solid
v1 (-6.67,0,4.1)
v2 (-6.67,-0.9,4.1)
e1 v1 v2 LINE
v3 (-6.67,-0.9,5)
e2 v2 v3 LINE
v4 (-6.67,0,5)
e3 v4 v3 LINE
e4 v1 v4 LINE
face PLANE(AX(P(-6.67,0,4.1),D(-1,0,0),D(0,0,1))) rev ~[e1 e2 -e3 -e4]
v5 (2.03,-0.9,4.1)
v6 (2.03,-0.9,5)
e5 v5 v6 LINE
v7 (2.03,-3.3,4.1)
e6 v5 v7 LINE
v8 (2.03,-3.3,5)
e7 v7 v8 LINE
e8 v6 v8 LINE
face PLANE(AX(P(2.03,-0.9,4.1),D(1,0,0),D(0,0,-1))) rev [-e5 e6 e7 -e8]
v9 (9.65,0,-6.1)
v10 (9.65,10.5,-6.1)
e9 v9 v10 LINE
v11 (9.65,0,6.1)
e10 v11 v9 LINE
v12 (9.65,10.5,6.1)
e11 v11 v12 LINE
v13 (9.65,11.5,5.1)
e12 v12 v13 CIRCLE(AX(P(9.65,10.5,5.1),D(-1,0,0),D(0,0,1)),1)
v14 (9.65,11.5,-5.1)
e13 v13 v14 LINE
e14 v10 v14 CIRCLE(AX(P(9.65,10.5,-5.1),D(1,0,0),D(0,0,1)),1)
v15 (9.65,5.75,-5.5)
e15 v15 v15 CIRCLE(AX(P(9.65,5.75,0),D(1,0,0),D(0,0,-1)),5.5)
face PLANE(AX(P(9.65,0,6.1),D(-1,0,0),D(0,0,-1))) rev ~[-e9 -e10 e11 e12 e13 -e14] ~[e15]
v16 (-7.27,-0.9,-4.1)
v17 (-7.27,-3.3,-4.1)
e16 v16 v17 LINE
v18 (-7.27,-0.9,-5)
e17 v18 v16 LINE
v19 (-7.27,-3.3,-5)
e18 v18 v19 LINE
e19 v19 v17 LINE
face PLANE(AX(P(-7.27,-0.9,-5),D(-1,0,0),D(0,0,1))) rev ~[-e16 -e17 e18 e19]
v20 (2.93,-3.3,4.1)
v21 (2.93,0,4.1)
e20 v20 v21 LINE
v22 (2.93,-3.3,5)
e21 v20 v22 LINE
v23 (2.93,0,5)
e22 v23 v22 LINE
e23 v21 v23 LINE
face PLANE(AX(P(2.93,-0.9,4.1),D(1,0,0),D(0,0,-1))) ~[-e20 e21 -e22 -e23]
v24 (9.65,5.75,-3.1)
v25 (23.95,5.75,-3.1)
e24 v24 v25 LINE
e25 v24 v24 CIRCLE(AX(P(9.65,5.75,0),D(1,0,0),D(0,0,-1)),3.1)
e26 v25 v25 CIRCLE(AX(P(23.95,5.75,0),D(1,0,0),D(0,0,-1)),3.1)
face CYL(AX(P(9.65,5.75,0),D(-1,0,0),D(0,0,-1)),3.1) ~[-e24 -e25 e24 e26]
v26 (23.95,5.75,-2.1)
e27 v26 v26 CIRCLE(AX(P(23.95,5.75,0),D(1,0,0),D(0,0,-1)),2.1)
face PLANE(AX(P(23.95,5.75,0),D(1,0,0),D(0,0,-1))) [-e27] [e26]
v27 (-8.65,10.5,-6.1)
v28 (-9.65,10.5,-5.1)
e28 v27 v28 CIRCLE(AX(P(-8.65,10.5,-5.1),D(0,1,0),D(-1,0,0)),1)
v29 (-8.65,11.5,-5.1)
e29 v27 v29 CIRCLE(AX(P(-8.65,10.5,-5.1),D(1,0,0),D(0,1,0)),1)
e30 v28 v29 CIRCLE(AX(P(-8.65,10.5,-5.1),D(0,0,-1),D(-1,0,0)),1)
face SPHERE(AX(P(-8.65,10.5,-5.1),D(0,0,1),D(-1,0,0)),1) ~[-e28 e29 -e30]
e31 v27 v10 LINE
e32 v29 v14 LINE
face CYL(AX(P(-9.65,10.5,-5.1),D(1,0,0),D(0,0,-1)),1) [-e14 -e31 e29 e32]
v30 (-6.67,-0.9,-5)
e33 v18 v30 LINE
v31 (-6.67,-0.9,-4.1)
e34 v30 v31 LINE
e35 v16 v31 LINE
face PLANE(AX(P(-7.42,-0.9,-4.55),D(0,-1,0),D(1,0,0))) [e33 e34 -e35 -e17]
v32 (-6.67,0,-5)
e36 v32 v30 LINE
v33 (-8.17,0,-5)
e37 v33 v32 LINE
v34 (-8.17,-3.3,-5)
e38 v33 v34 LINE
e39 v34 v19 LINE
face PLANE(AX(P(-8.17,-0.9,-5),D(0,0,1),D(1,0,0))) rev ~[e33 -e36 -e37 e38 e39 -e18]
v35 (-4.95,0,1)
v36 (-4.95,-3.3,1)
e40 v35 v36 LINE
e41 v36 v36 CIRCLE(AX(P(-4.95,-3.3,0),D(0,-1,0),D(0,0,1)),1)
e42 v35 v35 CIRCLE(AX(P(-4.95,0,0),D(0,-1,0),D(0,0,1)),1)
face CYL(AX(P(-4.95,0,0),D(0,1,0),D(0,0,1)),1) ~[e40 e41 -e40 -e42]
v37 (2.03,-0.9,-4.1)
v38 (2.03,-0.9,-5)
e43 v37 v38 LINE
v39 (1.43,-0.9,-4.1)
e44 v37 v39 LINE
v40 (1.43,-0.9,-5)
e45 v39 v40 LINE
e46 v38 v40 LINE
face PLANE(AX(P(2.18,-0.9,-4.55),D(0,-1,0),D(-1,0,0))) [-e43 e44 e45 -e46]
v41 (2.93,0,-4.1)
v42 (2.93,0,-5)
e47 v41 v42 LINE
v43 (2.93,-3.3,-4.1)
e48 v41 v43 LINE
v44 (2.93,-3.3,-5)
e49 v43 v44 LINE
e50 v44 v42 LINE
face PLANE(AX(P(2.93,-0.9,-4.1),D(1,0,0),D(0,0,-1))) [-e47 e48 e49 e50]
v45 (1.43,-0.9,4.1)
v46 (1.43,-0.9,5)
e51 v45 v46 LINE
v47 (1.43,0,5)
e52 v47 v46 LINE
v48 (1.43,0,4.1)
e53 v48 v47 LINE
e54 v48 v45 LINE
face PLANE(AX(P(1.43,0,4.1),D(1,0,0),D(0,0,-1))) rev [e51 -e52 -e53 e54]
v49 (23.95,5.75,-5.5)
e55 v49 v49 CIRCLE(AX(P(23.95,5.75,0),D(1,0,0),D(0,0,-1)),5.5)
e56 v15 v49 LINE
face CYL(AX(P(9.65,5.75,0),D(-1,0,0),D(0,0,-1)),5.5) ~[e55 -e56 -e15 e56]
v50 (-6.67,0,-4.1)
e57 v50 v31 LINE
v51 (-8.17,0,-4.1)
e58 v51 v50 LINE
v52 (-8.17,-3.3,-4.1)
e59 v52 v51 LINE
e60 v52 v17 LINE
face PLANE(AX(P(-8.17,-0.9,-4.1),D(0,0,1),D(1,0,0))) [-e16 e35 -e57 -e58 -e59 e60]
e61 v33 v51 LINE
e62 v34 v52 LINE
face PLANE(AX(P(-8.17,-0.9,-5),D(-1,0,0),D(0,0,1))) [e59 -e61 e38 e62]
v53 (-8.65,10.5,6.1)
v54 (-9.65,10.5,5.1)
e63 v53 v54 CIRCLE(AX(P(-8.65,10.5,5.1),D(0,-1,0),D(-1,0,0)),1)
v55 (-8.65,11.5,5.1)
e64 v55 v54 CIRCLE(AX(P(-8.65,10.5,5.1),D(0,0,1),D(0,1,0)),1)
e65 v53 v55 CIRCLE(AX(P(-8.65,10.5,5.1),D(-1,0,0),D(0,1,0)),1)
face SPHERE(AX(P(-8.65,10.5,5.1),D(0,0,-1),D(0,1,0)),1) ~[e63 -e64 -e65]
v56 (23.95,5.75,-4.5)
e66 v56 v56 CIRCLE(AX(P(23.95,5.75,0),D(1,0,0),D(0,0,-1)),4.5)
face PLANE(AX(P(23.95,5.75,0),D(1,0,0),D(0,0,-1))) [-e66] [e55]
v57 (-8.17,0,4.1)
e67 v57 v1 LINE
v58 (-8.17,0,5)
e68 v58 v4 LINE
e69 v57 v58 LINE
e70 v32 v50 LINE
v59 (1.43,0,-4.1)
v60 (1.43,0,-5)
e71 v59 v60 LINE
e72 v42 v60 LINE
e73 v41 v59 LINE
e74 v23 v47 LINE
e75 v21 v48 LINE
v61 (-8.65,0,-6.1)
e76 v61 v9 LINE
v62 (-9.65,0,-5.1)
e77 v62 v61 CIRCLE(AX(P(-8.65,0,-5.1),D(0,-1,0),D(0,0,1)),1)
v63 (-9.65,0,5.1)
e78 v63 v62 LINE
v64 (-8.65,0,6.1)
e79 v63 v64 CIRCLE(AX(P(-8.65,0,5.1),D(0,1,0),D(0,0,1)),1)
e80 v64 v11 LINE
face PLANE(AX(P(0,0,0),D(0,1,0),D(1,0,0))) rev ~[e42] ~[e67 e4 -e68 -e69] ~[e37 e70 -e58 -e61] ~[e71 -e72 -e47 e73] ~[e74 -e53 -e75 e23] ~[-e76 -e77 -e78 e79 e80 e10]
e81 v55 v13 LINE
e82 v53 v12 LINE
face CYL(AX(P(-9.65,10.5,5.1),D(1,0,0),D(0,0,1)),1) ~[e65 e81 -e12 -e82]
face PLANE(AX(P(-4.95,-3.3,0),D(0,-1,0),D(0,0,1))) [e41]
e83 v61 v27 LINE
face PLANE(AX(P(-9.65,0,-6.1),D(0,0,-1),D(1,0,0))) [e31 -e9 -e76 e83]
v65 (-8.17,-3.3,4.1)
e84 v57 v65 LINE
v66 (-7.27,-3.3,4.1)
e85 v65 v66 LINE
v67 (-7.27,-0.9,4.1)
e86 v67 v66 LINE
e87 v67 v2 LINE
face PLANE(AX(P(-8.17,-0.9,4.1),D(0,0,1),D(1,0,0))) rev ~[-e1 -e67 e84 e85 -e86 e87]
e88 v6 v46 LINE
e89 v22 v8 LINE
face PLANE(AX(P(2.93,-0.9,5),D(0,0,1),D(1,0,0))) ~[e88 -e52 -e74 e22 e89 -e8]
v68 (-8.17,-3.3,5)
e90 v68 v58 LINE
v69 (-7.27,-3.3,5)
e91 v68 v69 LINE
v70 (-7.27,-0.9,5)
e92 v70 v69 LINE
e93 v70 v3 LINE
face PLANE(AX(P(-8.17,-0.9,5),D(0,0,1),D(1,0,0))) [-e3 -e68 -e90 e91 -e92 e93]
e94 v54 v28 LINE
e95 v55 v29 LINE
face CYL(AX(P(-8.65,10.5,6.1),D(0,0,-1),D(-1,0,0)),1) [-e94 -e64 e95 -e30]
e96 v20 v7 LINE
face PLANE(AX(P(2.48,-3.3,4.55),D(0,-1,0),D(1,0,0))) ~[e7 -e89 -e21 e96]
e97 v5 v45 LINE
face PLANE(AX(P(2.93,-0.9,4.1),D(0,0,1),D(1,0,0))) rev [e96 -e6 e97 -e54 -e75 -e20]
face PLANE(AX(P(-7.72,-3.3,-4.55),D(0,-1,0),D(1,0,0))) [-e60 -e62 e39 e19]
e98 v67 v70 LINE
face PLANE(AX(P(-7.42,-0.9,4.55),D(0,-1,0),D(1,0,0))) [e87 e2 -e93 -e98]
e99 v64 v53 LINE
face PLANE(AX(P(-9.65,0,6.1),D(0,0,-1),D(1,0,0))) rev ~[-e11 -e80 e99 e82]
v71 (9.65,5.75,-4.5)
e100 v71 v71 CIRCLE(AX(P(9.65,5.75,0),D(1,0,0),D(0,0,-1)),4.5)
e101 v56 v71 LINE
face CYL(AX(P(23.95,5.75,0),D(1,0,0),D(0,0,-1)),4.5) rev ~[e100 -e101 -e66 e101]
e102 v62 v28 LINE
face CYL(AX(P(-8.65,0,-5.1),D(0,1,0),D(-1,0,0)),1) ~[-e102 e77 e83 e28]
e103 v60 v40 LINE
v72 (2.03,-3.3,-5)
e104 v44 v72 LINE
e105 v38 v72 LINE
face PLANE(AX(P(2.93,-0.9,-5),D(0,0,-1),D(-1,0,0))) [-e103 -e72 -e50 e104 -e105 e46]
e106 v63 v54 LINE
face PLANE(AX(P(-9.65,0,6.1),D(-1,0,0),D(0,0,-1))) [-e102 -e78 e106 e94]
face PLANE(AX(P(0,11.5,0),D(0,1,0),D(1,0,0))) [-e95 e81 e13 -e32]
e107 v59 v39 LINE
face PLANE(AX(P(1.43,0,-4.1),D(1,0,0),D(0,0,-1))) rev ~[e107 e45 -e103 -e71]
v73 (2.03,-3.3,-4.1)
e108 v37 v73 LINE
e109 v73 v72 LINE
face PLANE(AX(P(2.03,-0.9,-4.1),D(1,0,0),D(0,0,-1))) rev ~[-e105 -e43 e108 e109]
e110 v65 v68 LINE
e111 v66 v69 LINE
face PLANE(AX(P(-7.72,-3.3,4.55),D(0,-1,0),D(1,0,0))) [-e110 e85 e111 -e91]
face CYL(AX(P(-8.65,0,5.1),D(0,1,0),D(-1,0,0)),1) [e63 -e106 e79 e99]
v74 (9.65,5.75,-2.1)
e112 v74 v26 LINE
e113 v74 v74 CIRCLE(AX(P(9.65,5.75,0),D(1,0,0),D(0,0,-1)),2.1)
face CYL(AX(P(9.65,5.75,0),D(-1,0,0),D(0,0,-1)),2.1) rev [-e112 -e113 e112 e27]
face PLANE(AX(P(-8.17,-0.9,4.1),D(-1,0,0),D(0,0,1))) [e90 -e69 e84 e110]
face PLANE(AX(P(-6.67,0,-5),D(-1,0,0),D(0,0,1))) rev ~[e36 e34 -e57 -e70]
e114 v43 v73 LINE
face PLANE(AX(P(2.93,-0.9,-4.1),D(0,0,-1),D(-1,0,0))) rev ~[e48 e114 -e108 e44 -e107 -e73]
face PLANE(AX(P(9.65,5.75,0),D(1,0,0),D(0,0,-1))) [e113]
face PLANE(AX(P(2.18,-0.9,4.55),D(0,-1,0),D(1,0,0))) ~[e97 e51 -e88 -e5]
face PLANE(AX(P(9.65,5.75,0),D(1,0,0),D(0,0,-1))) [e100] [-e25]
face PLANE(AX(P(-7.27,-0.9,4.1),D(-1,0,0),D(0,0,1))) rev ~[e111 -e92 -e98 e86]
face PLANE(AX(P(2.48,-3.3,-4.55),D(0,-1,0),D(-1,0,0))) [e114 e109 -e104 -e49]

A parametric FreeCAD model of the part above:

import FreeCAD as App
import Part
import Sketcher
Q = App.Units.Quantity


def edges_at(feature, points):
    """Names of the edges that pass closest to the given points."""
    edges = feature.Shape.Edges
    near = lambda p: min(range(len(edges)), key=lambda i: edges[i].distToShape(Part.Vertex(*p))[0])
    return sorted({f"Edge{near(p) + 1}" for p in points})


def add_polygon(sketch, points):
    """Adds a closed chain of lines whose ends are joined by coincident constraints."""
    first, n = sketch.GeometryCount, len(points)
    for a, b in zip(points, points[1:] + points[:1]):
        sketch.addGeometry(Part.LineSegment(App.Vector(*a, 0), App.Vector(*b, 0)), False)
    for i in range(n):
        sketch.addConstraint(Sketcher.Constraint("Coincident", first + i, 2, first + (i + 1) % n, 1))

doc = App.newDocument("Part")
params = doc.addObject("Spreadsheet::Sheet", "Params")
for row, (alias, value) in enumerate([
    ("sketch1_width", "19.3 mm"),
    ("sketch1_height", "12.2 mm"),
    ("pad1_length", "11.5 mm"),
    ("fillet_radius", "1 mm"),
    ("sketch2_diameter", "11 mm"),
    ("pad2_length", "14.3 mm"),
    ("sketch3_diameter", "9 mm"),
    ("pocket1_length", "14.3 mm"),
    ("sketch4_diameter", "6.2 mm"),
    ("sketch4_diameter2", "4.2 mm"),
    ("pad3_length", "14.3 mm"),
    ("sketch5_width", "1.5 mm"),
    ("sketch5_height", "0.9 mm"),
    ("pad4_length", "0.9 mm"),
    ("sketch6_width", "0.9 mm"),
    ("pad5_length", "2.4 mm"),
    ("linearpattern_pitch", "9.1 mm"),
    ("sketch7_width", "1.5 mm"),
    ("sketch7_height", "0.9 mm"),
    ("pad6_length", "0.9 mm"),
    ("sketch8_width", "0.9 mm"),
    ("pad7_length", "2.4 mm"),
    ("sketch9_diameter", "2 mm"),
    ("pad8_length", "3.3 mm"),
], start=1):
    params.set(f"A{row}", alias)
    params.set(f"B{row}", "=" + value)
    params.setAlias(f"B{row}", alias)

body = doc.addObject("PartDesign::Body", "Body")

# Sketch on XZ plane
sketch1 = body.newObject("Sketcher::SketchObject", "Sketch")
sketch1.AttachmentSupport = (doc.getObject("XZ_Plane"), [""])
sketch1.MapMode = "FlatFace"
add_polygon(sketch1, [(-10, -6), (-10, 6), (10, 6), (10, -6)])  # lines 0-3
sketch1.addConstraint([
    Sketcher.Constraint("Vertical", 0),
    Sketcher.Constraint("Horizontal", 1),
    Sketcher.Constraint("Vertical", 2),
    Sketcher.Constraint("Horizontal", 3),
    Sketcher.Constraint("Symmetric", 0, 2, 2, 2, -1, 1),
    Sketcher.Constraint("DistanceX", 1, 1, 1, 2, Q("19.3 mm")),
    Sketcher.Constraint("DistanceY", 0, 1, 0, 2, Q("12.2 mm")),
])
sketch1.setExpression("Constraints[9]", "Params.sketch1_width")
sketch1.setExpression("Constraints[10]", "Params.sketch1_height")
pad1 = body.newObject("PartDesign::Pad", "Pad")
pad1.Profile = sketch1
pad1.setExpression("Length", "Params.pad1_length")
pad1.Reversed = True
doc.recompute()

fillet = body.newObject("PartDesign::Fillet", "Fillet")
fillet.Base = (pad1, edges_at(pad1, [
    (-9.65, 11.5, 0),
    (0, 11.5, 6.1),
    (-9.65, 5.75, 6.1),
    (-9.65, 5.75, -6.1),
    (0, 11.5, -6.1),
]))
fillet.setExpression("Radius", "Params.fillet_radius")

# Sketch on YZ plane
sketch2 = body.newObject("Sketcher::SketchObject", "Sketch001")
sketch2.AttachmentSupport = (doc.getObject("YZ_Plane"), [""])
sketch2.MapMode = "FlatFace"
sketch2.AttachmentOffset = App.Placement(App.Vector(0, 0, 9.65), App.Rotation())
sketch2.addGeometry(Part.Circle(App.Vector(6, 0, 0), App.Vector(0, 0, 1), 6), False)
sketch2.addConstraint([
    Sketcher.Constraint("PointOnObject", 0, 3, -1),
    Sketcher.Constraint("Diameter", 0, Q("11 mm")),
    Sketcher.Constraint("DistanceX", -1, 1, 0, 3, Q("5.75 mm")),
])
sketch2.setExpression("Constraints[1]", "Params.sketch2_diameter")
pad2 = body.newObject("PartDesign::Pad", "Pad001")
pad2.Profile = sketch2
pad2.setExpression("Length", "Params.pad2_length")

# Sketch on YZ plane
sketch3 = body.newObject("Sketcher::SketchObject", "Sketch002")
sketch3.AttachmentSupport = (doc.getObject("YZ_Plane"), [""])
sketch3.MapMode = "FlatFace"
sketch3.AttachmentOffset = App.Placement(App.Vector(0, 0, 23.95), App.Rotation())
sketch3.addGeometry(Part.Circle(App.Vector(5.8, 0, 0), App.Vector(0, 0, 1), 4.5), False)
sketch3.addConstraint([
    Sketcher.Constraint("PointOnObject", 0, 3, -1),
    Sketcher.Constraint("Diameter", 0, Q("9 mm")),
    Sketcher.Constraint("DistanceX", -1, 1, 0, 3, Q("5.75 mm")),
])
sketch3.setExpression("Constraints[1]", "Params.sketch3_diameter")
pocket1 = body.newObject("PartDesign::Pocket", "Pocket")
pocket1.Profile = sketch3
pocket1.setExpression("Length", "Params.pocket1_length")

# Sketch on YZ plane
sketch4 = body.newObject("Sketcher::SketchObject", "Sketch003")
sketch4.AttachmentSupport = (doc.getObject("YZ_Plane"), [""])
sketch4.MapMode = "FlatFace"
sketch4.AttachmentOffset = App.Placement(App.Vector(0, 0, 9.65), App.Rotation())
sketch4.addGeometry([
    Part.Circle(App.Vector(5.8, 0, 0), App.Vector(0, 0, 1), 3.1),
    Part.Circle(App.Vector(5.8, 0, 0), App.Vector(0, 0, 1), 2.1),
], False)
sketch4.addConstraint([
    Sketcher.Constraint("Coincident", 1, 3, 0, 3),
    Sketcher.Constraint("PointOnObject", 0, 3, -1),
    Sketcher.Constraint("Diameter", 0, Q("6.2 mm")),
    Sketcher.Constraint("Diameter", 1, Q("4.2 mm")),
    Sketcher.Constraint("DistanceX", -1, 1, 0, 3, Q("5.75 mm")),
])
sketch4.setExpression("Constraints[2]", "Params.sketch4_diameter")
sketch4.setExpression("Constraints[3]", "Params.sketch4_diameter2")
pad3 = body.newObject("PartDesign::Pad", "Pad002")
pad3.Profile = sketch4
pad3.setExpression("Length", "Params.pad3_length")

# Sketch on XZ plane
sketch5 = body.newObject("Sketcher::SketchObject", "Sketch004")
sketch5.AttachmentSupport = (doc.getObject("XZ_Plane"), [""])
sketch5.MapMode = "FlatFace"
add_polygon(sketch5, [(-8.2, 5), (-8.2, 4.1), (-6.7, 4.1), (-6.7, 5)])  # lines 0-3
sketch5.addConstraint([
    Sketcher.Constraint("Vertical", 0),
    Sketcher.Constraint("Horizontal", 1),
    Sketcher.Constraint("Vertical", 2),
    Sketcher.Constraint("Horizontal", 3),
    Sketcher.Constraint("DistanceX", 1, 1, 1, 2, Q("1.5 mm")),
    Sketcher.Constraint("DistanceY", 0, 2, 0, 1, Q("0.9 mm")),
    Sketcher.Constraint("DistanceY", -1, 1, 2, 2, Q("5 mm")),
    Sketcher.Constraint("DistanceX", 0, 2, -1, 1, Q("8.17 mm")),
])
sketch5.setExpression("Constraints[8]", "Params.sketch5_width")
sketch5.setExpression("Constraints[9]", "Params.sketch5_height")
pad4 = body.newObject("PartDesign::Pad", "Pad003")
pad4.Profile = sketch5
pad4.setExpression("Length", "Params.pad4_length")

# Sketch on XZ plane
sketch6 = body.newObject("Sketcher::SketchObject", "Sketch005")
sketch6.AttachmentSupport = (doc.getObject("XZ_Plane"), [""])
sketch6.MapMode = "FlatFace"
sketch6.AttachmentOffset = App.Placement(App.Vector(0, 0, 0.9), App.Rotation())
add_polygon(sketch6, [(-8.2, 5), (-8.2, 4.1), (-7.3, 4.1), (-7.3, 5)])  # lines 0-3
sketch6.addConstraint([
    Sketcher.Constraint("Vertical", 0),
    Sketcher.Constraint("Horizontal", 1),
    Sketcher.Constraint("Vertical", 2),
    Sketcher.Constraint("Horizontal", 3),
    Sketcher.Constraint("Equal", 3, 0),
    Sketcher.Constraint("DistanceX", 1, 1, 1, 2, Q("0.9 mm")),
    Sketcher.Constraint("DistanceY", -1, 1, 2, 2, Q("5 mm")),
    Sketcher.Constraint("DistanceX", 0, 2, -1, 1, Q("8.17 mm")),
])
sketch6.setExpression("Constraints[9]", "Params.sketch6_width")
pad5 = body.newObject("PartDesign::Pad", "Pad004")
pad5.Profile = sketch6
pad5.setExpression("Length", "Params.pad5_length")
doc.recompute()

linearpattern = body.newObject("PartDesign::LinearPattern", "LinearPattern")
linearpattern.Originals = [pad4, pad5]
linearpattern.Direction = (doc.getObject("Z_Axis"), [""])
linearpattern.Mode = "offset"
linearpattern.setExpression("Offset", "Params.linearpattern_pitch")
linearpattern.Occurrences = 2
linearpattern.Reversed = True
body.Tip = linearpattern
doc.recompute()

datumplane = body.newObject("PartDesign::Plane", "DatumPlane")
datumplane.AttachmentSupport = (doc.getObject("YZ_Plane"), [""])
datumplane.MapMode = "FlatFace"
datumplane.AttachmentOffset = App.Placement(App.Vector(0, 0, -2.62), App.Rotation())
mirrored = body.newObject("PartDesign::Mirrored", "Mirrored")
mirrored.Originals = [pad4, pad5]
mirrored.MirrorPlane = (datumplane, [""])
body.Tip = mirrored

# Sketch on XZ plane
sketch7 = body.newObject("Sketcher::SketchObject", "Sketch006")
sketch7.AttachmentSupport = (doc.getObject("XZ_Plane"), [""])
sketch7.MapMode = "FlatFace"
add_polygon(sketch7, [(2.9, -5), (2.9, -4.1), (1.4, -4.1), (1.4, -5)])  # lines 0-3
sketch7.addConstraint([
    Sketcher.Constraint("Vertical", 0),
    Sketcher.Constraint("Horizontal", 1),
    Sketcher.Constraint("Vertical", 2),
    Sketcher.Constraint("Horizontal", 3),
    Sketcher.Constraint("DistanceX", 1, 2, 1, 1, Q("1.5 mm")),
    Sketcher.Constraint("DistanceY", 0, 1, 0, 2, Q("0.9 mm")),
    Sketcher.Constraint("DistanceY", 2, 2, -1, 1, Q("5 mm")),
    Sketcher.Constraint("DistanceX", -1, 1, 0, 2, Q("2.93 mm")),
])
sketch7.setExpression("Constraints[8]", "Params.sketch7_width")
sketch7.setExpression("Constraints[9]", "Params.sketch7_height")
pad6 = body.newObject("PartDesign::Pad", "Pad005")
pad6.Profile = sketch7
pad6.setExpression("Length", "Params.pad6_length")

# Sketch on XZ plane
sketch8 = body.newObject("Sketcher::SketchObject", "Sketch007")
sketch8.AttachmentSupport = (doc.getObject("XZ_Plane"), [""])
sketch8.MapMode = "FlatFace"
sketch8.AttachmentOffset = App.Placement(App.Vector(0, 0, 0.9), App.Rotation())
add_polygon(sketch8, [(2.9, -5), (2.9, -4.1), (2, -4.1), (2, -5)])  # lines 0-3
sketch8.addConstraint([
    Sketcher.Constraint("Vertical", 0),
    Sketcher.Constraint("Horizontal", 1),
    Sketcher.Constraint("Vertical", 2),
    Sketcher.Constraint("Horizontal", 3),
    Sketcher.Constraint("Equal", 3, 0),
    Sketcher.Constraint("DistanceX", 1, 2, 1, 1, Q("0.9 mm")),
    Sketcher.Constraint("DistanceY", 2, 2, -1, 1, Q("5 mm")),
    Sketcher.Constraint("DistanceX", -1, 1, 0, 2, Q("2.93 mm")),
])
sketch8.setExpression("Constraints[9]", "Params.sketch8_width")
pad7 = body.newObject("PartDesign::Pad", "Pad006")
pad7.Profile = sketch8
pad7.setExpression("Length", "Params.pad7_length")

# Sketch on XZ plane
sketch9 = body.newObject("Sketcher::SketchObject", "Sketch008")
sketch9.AttachmentSupport = (doc.getObject("XZ_Plane"), [""])
sketch9.MapMode = "FlatFace"
sketch9.addGeometry(Part.Circle(App.Vector(-5, 0, 0), App.Vector(0, 0, 1), 1), False)
sketch9.addConstraint([
    Sketcher.Constraint("PointOnObject", 0, 3, -1),
    Sketcher.Constraint("Diameter", 0, Q("2 mm")),
    Sketcher.Constraint("DistanceX", 0, 3, -1, 1, Q("4.95 mm")),
])
sketch9.setExpression("Constraints[1]", "Params.sketch9_diameter")
pad8 = body.newObject("PartDesign::Pad", "Pad007")
pad8.Profile = sketch9
pad8.setExpression("Length", "Params.pad8_length")

doc.recompute()
